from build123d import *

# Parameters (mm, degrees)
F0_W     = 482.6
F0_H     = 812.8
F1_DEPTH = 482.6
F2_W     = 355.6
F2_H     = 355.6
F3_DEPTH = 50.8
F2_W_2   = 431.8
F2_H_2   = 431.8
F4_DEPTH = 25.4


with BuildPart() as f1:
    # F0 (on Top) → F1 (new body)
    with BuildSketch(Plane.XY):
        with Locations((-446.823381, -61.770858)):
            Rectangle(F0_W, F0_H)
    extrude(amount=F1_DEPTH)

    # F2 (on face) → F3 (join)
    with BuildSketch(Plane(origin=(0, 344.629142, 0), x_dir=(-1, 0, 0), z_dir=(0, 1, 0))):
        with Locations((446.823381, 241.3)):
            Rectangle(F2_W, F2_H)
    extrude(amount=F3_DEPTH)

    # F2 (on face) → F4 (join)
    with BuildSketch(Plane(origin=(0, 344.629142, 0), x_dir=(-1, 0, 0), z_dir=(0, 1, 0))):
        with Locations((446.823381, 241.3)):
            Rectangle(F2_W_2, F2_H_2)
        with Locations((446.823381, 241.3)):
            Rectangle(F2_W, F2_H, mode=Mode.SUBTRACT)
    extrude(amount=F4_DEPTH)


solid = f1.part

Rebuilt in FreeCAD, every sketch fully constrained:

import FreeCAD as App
import Part
import Sketcher
Q = App.Units.Quantity


def add_polygon(sketch, points):
    """Adds a closed chain of lines whose ends are joined by coincident constraints."""
    first, n = sketch.GeometryCount, len(points)
    for a, b in zip(points, points[1:] + points[:1]):
        sketch.addGeometry(Part.LineSegment(App.Vector(*a, 0), App.Vector(*b, 0)), False)
    for i in range(n):
        sketch.addConstraint(Sketcher.Constraint("Coincident", first + i, 2, first + (i + 1) % n, 1))

doc = App.newDocument("Part")
body = doc.addObject("PartDesign::Body", "Body")

# Sketch on XY plane
sketch1 = body.newObject("Sketcher::SketchObject", "Sketch")
sketch1.AttachmentSupport = (doc.getObject("XY_Plane"), [""])
sketch1.MapMode = "FlatFace"
add_polygon(sketch1, [(-688, 345), (-688, -468), (-206, -468), (-206, 345)])  # lines 0-3
sketch1.addConstraint([
    Sketcher.Constraint("Vertical", 0),
    Sketcher.Constraint("Horizontal", 1),
    Sketcher.Constraint("Vertical", 2),
    Sketcher.Constraint("Horizontal", 3),
    Sketcher.Constraint("DistanceX", 1, 1, 1, 2, Q("19 in")),
    Sketcher.Constraint("DistanceY", 0, 2, 0, 1, Q("32 in")),
    Sketcher.Constraint("DistanceX", 0, 2, -1, 1, Q("688.123381 mm")),
    Sketcher.Constraint("DistanceY", 0, 2, -1, 1, Q("468.170858 mm")),
])
pad1 = body.newObject("PartDesign::Pad", "Pad")
pad1.Profile = sketch1
pad1.Length = Q("19 in")

# Sketch on XZ plane
sketch2 = body.newObject("Sketcher::SketchObject", "Sketch001")
sketch2.AttachmentSupport = (doc.getObject("XZ_Plane"), [""])
sketch2.MapMode = "FlatFace"
sketch2.AttachmentOffset = App.Placement(App.Vector(0, 0, -344.629142), App.Rotation())
add_polygon(sketch2, [(-269, 419), (-269, 64), (-625, 64), (-625, 419)])  # lines 0-3
sketch2.addConstraint([
    Sketcher.Constraint("Vertical", 0),
    Sketcher.Constraint("Horizontal", 1),
    Sketcher.Constraint("Vertical", 2),
    Sketcher.Constraint("Horizontal", 3),
    Sketcher.Constraint("Equal", 3, 0),
    Sketcher.Constraint("DistanceX", 1, 2, 1, 1, Q("14 in")),
    Sketcher.Constraint("DistanceY", -1, 1, 0, 2, Q("2.5 in")),
    Sketcher.Constraint("DistanceX", 0, 2, -1, 1, Q("269.023381 mm")),
])
pad2 = body.newObject("PartDesign::Pad", "Pad001")
pad2.Profile = sketch2
pad2.Length = Q("2 in")
pad2.Reversed = True

# Sketch on XZ plane
sketch3 = body.newObject("Sketcher::SketchObject", "Sketch002")
sketch3.AttachmentSupport = (doc.getObject("XZ_Plane"), [""])
sketch3.MapMode = "FlatFace"
sketch3.AttachmentOffset = App.Placement(App.Vector(0, 0, -344.629142), App.Rotation())
add_polygon(sketch3, [(-231, 457), (-231, 25), (-663, 25), (-663, 457)])  # lines 0-3
add_polygon(sketch3, [(-625, 64), (-269, 64), (-269, 419), (-625, 419)])  # lines 4-7
sketch3.addConstraint([
    Sketcher.Constraint("Vertical", 0),
    Sketcher.Constraint("Horizontal", 1),
    Sketcher.Constraint("Vertical", 2),
    Sketcher.Constraint("Horizontal", 3),
    Sketcher.Constraint("Horizontal", 4),
    Sketcher.Constraint("Vertical", 5),
    Sketcher.Constraint("Horizontal", 6),
    Sketcher.Constraint("Vertical", 7),
    Sketcher.Constraint("Equal", 3, 0),
    Sketcher.Constraint("Equal", 6, 5),
    Sketcher.Constraint("DistanceX", 1, 2, 1, 1, Q("17 in")),
    Sketcher.Constraint("DistanceX", 4, 1, 4, 2, Q("14 in")),
    Sketcher.Constraint("DistanceY", -1, 1, 0, 2, Q("1 in")),
    Sketcher.Constraint("DistanceY", -1, 1, 4, 2, Q("2.5 in")),
    Sketcher.Constraint("DistanceX", 4, 2, 0, 2, Q("1.5 in")),
    Sketcher.Constraint("DistanceX", 0, 2, -1, 1, Q("230.923381 mm")),
])
pad3 = body.newObject("PartDesign::Pad", "Pad002")
pad3.Profile = sketch3
pad3.Length = Q("1 in")
pad3.Reversed = True

doc.recompute()
